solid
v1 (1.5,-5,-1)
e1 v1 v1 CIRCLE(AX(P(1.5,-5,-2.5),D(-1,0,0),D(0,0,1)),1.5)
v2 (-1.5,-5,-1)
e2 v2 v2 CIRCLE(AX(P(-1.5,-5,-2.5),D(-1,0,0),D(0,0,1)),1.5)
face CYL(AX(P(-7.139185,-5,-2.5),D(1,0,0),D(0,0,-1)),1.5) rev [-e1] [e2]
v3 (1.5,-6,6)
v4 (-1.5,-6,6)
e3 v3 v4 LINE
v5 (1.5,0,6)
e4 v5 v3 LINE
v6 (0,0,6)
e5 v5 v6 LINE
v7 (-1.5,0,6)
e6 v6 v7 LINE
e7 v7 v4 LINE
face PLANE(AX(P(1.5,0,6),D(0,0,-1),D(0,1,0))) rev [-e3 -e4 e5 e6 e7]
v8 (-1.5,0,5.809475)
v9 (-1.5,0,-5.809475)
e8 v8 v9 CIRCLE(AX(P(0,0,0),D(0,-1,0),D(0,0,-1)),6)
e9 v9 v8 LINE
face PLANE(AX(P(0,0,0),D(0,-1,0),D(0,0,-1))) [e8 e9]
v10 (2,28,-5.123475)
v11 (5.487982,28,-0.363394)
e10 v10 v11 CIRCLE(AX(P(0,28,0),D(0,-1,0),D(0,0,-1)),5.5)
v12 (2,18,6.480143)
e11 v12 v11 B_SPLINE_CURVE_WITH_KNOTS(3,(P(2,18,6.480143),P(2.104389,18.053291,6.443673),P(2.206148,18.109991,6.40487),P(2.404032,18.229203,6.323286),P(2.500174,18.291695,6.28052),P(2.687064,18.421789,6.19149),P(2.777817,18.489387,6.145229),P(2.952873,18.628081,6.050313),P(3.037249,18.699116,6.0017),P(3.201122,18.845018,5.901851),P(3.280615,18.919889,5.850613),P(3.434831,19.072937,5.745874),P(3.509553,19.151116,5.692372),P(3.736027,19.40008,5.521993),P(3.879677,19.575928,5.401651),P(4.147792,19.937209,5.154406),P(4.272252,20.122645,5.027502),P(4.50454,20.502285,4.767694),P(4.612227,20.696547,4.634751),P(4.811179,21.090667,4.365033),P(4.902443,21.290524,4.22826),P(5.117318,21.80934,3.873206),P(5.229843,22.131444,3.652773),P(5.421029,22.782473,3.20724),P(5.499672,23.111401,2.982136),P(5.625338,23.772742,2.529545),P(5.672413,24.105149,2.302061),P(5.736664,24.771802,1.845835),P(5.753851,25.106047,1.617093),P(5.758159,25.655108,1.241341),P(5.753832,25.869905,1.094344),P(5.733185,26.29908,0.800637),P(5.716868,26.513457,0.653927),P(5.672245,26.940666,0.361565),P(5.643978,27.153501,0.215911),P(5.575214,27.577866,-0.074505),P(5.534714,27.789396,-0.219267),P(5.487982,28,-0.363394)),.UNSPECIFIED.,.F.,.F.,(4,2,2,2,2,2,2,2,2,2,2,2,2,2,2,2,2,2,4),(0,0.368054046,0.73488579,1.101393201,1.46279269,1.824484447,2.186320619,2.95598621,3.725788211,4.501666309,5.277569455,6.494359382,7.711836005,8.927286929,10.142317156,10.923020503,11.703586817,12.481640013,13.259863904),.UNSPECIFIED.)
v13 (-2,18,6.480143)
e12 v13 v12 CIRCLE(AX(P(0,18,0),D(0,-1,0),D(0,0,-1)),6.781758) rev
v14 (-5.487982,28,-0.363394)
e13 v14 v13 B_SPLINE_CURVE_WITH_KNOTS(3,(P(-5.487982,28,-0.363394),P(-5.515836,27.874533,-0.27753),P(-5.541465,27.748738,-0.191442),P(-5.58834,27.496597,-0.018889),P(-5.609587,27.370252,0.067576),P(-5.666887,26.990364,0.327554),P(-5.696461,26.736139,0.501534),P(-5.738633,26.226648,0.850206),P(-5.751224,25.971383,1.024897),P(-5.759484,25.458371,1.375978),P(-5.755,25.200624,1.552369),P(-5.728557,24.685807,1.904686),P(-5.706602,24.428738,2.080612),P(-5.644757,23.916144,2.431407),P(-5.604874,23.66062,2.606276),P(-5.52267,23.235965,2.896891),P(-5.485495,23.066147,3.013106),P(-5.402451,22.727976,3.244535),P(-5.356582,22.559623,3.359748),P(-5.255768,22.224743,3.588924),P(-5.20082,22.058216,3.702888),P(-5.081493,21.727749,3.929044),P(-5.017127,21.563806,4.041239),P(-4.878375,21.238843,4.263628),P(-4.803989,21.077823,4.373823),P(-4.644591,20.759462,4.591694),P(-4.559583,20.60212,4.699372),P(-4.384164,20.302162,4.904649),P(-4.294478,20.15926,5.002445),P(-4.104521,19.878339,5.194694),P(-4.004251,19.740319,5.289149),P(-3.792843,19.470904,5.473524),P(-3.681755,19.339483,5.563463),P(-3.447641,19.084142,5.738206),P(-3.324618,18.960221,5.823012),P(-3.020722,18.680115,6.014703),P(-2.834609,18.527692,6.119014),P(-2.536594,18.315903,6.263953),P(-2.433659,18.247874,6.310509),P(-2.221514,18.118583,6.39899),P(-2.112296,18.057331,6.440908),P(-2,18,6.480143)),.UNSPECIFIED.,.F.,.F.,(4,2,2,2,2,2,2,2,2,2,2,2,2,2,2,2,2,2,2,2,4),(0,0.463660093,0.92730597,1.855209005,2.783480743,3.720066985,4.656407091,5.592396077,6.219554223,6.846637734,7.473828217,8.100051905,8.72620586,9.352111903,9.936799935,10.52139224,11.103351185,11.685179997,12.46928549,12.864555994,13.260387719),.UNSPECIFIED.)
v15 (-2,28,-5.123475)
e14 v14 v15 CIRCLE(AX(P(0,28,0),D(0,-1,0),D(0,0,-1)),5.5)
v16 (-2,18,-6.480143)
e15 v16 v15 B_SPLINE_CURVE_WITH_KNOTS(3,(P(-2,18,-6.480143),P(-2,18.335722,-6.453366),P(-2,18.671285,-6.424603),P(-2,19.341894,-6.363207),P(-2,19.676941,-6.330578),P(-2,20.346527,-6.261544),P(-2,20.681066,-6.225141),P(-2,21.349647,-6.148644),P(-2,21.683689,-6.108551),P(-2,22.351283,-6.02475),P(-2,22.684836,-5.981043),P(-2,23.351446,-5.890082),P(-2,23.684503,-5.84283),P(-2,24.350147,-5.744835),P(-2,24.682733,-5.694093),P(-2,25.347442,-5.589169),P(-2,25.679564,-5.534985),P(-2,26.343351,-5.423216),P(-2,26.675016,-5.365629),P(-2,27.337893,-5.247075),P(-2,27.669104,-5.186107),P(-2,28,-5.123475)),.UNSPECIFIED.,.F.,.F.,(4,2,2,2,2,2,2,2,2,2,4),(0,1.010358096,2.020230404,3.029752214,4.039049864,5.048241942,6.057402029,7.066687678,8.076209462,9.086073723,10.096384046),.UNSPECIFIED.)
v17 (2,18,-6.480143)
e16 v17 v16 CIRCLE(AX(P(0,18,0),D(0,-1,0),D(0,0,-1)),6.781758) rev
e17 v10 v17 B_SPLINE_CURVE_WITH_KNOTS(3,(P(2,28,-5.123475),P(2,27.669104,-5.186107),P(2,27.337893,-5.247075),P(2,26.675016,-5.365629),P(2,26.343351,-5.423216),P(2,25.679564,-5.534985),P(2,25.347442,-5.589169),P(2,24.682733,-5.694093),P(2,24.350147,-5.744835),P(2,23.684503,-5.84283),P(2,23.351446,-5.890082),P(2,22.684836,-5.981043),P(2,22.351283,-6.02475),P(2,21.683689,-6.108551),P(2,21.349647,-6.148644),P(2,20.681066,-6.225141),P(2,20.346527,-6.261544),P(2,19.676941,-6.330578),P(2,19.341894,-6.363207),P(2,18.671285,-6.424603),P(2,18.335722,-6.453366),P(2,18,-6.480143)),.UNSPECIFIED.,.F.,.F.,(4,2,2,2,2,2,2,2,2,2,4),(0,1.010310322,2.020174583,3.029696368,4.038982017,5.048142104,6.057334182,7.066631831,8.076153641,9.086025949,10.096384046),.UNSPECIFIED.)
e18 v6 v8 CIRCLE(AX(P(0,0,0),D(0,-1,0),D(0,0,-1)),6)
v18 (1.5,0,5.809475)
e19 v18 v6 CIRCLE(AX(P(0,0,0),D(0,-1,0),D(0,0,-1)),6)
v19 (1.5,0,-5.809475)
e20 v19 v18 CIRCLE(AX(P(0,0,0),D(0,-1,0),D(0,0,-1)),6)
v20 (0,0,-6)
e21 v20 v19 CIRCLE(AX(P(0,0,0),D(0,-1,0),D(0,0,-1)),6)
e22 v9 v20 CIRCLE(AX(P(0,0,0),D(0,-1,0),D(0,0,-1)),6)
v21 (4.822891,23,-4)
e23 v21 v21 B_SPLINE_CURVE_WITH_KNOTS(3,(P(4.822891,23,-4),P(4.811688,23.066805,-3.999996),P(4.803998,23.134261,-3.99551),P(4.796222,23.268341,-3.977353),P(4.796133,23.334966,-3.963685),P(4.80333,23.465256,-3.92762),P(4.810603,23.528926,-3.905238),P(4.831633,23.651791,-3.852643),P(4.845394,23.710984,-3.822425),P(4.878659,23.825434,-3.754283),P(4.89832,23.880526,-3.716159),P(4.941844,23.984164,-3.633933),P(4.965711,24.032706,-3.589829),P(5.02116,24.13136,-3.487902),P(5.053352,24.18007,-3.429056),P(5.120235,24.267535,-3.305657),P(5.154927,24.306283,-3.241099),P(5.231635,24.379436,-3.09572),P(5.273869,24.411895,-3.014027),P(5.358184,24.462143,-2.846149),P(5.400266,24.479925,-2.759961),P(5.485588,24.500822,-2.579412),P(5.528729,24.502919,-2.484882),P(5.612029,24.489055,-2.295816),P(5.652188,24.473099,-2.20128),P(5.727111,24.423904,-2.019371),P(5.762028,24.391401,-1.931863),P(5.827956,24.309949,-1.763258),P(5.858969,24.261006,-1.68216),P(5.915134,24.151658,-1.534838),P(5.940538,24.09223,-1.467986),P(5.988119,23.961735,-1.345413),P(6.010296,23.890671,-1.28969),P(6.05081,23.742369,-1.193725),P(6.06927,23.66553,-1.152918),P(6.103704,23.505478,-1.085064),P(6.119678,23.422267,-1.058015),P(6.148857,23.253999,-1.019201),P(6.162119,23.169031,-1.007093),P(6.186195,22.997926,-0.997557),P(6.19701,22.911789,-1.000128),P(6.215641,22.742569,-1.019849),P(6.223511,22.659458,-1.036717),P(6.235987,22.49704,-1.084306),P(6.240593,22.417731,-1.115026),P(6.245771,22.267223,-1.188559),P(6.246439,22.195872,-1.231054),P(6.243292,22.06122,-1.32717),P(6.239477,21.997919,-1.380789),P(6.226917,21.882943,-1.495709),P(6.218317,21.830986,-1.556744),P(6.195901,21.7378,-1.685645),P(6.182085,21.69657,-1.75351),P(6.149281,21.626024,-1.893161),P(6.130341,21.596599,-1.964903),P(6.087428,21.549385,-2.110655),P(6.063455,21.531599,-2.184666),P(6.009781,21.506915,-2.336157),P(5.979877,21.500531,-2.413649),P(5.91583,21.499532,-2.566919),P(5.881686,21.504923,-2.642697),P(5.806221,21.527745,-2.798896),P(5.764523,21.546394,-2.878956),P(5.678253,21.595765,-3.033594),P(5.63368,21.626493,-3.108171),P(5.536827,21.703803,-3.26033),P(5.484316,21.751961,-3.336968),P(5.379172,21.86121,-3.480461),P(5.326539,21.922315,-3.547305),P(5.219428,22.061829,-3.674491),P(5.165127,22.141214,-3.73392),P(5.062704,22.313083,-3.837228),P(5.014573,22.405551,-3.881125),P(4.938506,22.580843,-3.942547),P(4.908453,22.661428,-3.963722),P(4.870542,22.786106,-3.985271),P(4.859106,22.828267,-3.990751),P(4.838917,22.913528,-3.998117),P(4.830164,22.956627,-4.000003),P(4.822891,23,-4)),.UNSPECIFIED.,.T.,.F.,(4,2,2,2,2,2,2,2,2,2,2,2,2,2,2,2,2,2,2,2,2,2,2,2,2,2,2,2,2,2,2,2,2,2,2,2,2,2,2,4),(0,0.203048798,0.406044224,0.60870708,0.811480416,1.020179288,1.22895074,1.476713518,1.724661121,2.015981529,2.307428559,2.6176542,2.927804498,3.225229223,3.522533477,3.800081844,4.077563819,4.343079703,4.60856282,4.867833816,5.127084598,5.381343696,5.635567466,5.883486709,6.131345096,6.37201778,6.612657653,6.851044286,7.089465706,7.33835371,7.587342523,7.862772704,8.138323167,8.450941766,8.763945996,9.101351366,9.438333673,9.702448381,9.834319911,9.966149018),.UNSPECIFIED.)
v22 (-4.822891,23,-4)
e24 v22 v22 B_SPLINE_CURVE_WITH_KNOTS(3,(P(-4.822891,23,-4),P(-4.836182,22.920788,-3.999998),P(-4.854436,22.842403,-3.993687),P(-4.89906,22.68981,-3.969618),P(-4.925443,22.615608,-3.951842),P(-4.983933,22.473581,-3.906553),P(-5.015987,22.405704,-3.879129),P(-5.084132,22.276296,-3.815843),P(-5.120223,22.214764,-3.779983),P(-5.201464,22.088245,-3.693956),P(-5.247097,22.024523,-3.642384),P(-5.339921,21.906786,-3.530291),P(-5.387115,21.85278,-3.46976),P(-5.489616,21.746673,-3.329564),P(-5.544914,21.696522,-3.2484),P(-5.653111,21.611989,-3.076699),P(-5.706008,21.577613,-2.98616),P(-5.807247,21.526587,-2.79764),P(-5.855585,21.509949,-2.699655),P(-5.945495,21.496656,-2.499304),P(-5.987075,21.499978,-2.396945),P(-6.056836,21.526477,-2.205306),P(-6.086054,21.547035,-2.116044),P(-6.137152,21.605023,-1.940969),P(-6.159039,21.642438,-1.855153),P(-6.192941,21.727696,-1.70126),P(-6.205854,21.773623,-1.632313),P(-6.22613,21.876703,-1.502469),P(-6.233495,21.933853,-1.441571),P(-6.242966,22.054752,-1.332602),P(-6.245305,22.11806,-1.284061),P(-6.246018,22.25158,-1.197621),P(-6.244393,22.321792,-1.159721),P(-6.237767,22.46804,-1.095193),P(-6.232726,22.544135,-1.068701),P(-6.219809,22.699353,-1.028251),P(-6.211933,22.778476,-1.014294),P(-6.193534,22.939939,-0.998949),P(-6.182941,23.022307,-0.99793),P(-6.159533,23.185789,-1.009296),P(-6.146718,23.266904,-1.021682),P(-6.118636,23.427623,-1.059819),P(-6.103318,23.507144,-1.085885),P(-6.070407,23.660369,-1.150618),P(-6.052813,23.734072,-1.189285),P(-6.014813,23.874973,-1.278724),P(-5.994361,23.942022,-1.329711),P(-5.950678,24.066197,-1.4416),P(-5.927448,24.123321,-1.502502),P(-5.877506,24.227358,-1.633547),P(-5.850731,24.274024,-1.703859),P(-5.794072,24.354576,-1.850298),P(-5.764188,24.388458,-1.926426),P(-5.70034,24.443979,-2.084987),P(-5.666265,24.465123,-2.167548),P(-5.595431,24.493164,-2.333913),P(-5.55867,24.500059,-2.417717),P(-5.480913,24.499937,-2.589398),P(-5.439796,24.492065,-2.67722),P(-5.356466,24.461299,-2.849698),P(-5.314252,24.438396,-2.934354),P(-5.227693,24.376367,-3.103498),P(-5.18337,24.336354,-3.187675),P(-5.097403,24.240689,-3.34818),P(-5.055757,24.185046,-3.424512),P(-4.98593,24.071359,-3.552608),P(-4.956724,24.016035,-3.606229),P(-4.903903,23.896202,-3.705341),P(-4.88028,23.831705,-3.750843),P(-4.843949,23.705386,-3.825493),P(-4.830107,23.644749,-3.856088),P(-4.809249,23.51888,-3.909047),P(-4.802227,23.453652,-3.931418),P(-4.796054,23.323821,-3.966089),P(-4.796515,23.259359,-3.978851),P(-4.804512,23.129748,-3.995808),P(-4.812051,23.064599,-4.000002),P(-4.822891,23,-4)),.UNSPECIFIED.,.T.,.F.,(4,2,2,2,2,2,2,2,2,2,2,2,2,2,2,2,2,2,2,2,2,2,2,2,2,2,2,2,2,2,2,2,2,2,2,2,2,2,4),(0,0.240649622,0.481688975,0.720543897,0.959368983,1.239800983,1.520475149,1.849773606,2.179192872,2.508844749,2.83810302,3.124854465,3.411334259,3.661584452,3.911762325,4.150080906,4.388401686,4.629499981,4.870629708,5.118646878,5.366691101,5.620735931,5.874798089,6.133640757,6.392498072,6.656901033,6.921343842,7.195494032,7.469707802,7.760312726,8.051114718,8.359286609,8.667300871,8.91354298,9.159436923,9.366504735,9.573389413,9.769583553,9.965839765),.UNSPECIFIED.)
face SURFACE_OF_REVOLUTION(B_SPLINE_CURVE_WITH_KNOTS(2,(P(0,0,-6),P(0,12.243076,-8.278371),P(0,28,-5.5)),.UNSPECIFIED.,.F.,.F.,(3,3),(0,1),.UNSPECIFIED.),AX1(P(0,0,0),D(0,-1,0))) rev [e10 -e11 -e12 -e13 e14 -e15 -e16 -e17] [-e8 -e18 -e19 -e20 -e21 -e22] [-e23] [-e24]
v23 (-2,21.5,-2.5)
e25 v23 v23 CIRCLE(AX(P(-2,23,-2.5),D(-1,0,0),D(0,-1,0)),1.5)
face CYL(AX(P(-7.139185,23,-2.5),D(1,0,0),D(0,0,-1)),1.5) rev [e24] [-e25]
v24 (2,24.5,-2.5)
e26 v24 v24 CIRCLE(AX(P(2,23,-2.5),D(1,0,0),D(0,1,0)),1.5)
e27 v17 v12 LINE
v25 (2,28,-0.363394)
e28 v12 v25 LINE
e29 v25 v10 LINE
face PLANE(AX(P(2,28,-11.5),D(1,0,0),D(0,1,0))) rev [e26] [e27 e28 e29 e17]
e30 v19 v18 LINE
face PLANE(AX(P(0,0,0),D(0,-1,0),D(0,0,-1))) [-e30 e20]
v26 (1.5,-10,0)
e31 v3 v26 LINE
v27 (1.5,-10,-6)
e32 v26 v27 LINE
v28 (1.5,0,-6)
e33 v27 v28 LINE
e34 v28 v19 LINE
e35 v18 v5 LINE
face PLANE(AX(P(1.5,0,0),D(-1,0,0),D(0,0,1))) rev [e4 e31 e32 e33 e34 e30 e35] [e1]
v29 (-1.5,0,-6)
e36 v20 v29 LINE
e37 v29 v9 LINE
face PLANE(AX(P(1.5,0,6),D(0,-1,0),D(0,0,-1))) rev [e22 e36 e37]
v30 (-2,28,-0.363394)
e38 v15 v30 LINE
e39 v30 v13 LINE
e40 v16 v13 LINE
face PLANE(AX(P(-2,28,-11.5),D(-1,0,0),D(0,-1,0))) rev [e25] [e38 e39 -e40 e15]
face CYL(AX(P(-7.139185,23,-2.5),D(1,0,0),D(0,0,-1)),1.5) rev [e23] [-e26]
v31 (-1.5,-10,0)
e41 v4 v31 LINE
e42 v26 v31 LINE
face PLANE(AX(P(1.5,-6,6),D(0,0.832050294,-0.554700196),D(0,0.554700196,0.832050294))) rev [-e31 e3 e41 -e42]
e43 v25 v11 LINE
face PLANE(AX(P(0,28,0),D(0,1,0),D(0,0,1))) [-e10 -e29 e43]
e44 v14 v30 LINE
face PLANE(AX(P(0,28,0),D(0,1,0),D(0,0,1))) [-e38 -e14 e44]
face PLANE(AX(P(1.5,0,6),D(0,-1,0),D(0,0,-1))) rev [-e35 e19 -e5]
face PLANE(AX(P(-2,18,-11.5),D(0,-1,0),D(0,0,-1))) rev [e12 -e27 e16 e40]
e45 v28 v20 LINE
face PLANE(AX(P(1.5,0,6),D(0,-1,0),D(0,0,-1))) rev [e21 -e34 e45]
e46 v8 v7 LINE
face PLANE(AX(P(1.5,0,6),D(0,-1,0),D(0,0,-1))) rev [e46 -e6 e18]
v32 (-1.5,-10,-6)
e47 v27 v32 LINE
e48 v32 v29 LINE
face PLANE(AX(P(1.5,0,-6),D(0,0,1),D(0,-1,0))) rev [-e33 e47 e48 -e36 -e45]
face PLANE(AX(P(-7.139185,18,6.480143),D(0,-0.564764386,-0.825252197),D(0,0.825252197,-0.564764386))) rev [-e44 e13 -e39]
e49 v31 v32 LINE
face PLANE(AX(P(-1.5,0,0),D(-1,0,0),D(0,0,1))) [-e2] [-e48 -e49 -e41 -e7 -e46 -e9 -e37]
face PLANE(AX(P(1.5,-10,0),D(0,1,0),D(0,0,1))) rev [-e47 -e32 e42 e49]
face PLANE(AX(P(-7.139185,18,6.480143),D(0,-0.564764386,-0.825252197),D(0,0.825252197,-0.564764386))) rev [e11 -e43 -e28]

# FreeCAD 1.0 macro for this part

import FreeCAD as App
import Part
import Sketcher
from FreeCAD import Vector
Q = App.Units.Quantity

doc = App.newDocument("Part")
body = doc.addObject("PartDesign::Body", "Body")

# Sketch on YZ plane
sketch1 = body.newObject("Sketcher::SketchObject", "Sketch")
sketch1.AttachmentSupport = (doc.getObject("YZ_Plane"), [""])
sketch1.MapMode = "FlatFace"
sketch1.addGeometry([
    Part.LineSegment(Vector(28, 0, 0), Vector(0, 0, 0)),
    Part.LineSegment(Vector(0, 0, 0), Vector(0, -6, 0)),
    Part.BSplineCurve([Vector(28, -5.5, 0), Vector(12.243076, -8.278371, 0), Vector(0, -6, 0)], [3, 3], [0, 1], False, 2, [1, 1, 1], False),
    Part.LineSegment(Vector(28, -5.5, 0), Vector(28, 0, 0)),
], False)
sketch1.addConstraint([
    Sketcher.Constraint("Block", 2),
    Sketcher.Constraint("Coincident", 0, 2, 1, 1),
    Sketcher.Constraint("Coincident", 1, 2, 2, 2),
    Sketcher.Constraint("Coincident", 2, 1, 3, 1),
    Sketcher.Constraint("Coincident", 3, 2, 0, 1),
    Sketcher.Constraint("Horizontal", 0),
    Sketcher.Constraint("Vertical", 1),
    Sketcher.Constraint("Vertical", 3),
    Sketcher.Constraint("PointOnObject", 3, 2, -1),
])
revolution = body.newObject("PartDesign::Revolution", "Revolution")
revolution.Profile = sketch1
revolution.ReferenceAxis = (sketch1, ["H_Axis"])
revolution.Angle = 360

# Sketch on XY plane
sketch2 = body.newObject("Sketcher::SketchObject", "Sketch001")
sketch2.AttachmentSupport = (doc.getObject("XY_Plane"), [""])
sketch2.MapMode = "FlatFace"
sketch2.addGeometry([
    Part.LineSegment(Vector(-2, 28, 0), Vector(-2, 18, 0)),
    Part.LineSegment(Vector(-2, 18, 0), Vector(2, 18, 0)),
    Part.LineSegment(Vector(2, 18, 0), Vector(2, 28, 0)),
    Part.LineSegment(Vector(2, 28, 0), Vector(-2, 28, 0)),
], False)
sketch2.addConstraint([
    Sketcher.Constraint("Coincident", 0, 2, 1, 1),
    Sketcher.Constraint("Coincident", 1, 2, 2, 1),
    Sketcher.Constraint("Coincident", 2, 2, 3, 1),
    Sketcher.Constraint("Coincident", 3, 2, 0, 1),
    Sketcher.Constraint("Vertical", 0),
    Sketcher.Constraint("Horizontal", 1),
    Sketcher.Constraint("Vertical", 2),
    Sketcher.Constraint("Horizontal", 3),
    Sketcher.Constraint("DistanceX", 1, 1, 1, 2, Q("4 mm")),
    Sketcher.Constraint("DistanceY", 0, 2, 0, 1, Q("10 mm")),
    Sketcher.Constraint("DistanceX", 0, 2, -1, 1, Q("2 mm")),
    Sketcher.Constraint("DistanceY", -1, 1, 0, 2, Q("18 mm")),
])
pocket1 = body.newObject("PartDesign::Pocket", "Pocket")
pocket1.Profile = sketch2
pocket1.Length = 23
pocket1.Midplane = True

# Sketch on YZ plane
sketch3 = body.newObject("Sketcher::SketchObject", "Sketch002")
sketch3.AttachmentSupport = (doc.getObject("YZ_Plane"), [""])
sketch3.MapMode = "FlatFace"
sketch3.addGeometry([
    Part.LineSegment(Vector(28, 7, 0), Vector(18, 6, 0)),
    Part.LineSegment(Vector(18, 6, 0), Vector(28, 0, 0)),
    Part.LineSegment(Vector(28, 0, 0), Vector(28, 7, 0)),
], False)
sketch3.addConstraint([
    Sketcher.Constraint("Coincident", 0, 2, 1, 1),
    Sketcher.Constraint("Coincident", 1, 2, 2, 1),
    Sketcher.Constraint("Coincident", 2, 2, 0, 1),
    Sketcher.Constraint("Vertical", 2),
    Sketcher.Constraint("DistanceX", -1, 1, 0, 2, Q("18 mm")),
    Sketcher.Constraint("DistanceX", -1, 1, 1, 2, Q("28 mm")),
    Sketcher.Constraint("DistanceY", 2, 1, 2, 2, Q("7.145153 mm")),
    Sketcher.Constraint("DistanceY", -1, 1, 2, 2, Q("6.781758 mm")),
    Sketcher.Constraint("Distance", 0, Q("10.004548 mm")),
])
pocket2 = body.newObject("PartDesign::Pocket", "Pocket001")
pocket2.Profile = sketch3
pocket2.Type = "ThroughAll"
pocket2.Midplane = True

# Sketch on YZ plane
sketch4 = body.newObject("Sketcher::SketchObject", "Sketch003")
sketch4.AttachmentSupport = (doc.getObject("YZ_Plane"), [""])
sketch4.MapMode = "FlatFace"
sketch4.addGeometry([
    Part.LineSegment(Vector(0, 6, 0), Vector(-6, 6, 0)),  # 0
    Part.LineSegment(Vector(-6, 6, 0), Vector(-10, 0, 0)),  # 1
    Part.LineSegment(Vector(-10, 0, 0), Vector(-10, -6, 0)),  # 2
    Part.LineSegment(Vector(-10, -6, 0), Vector(0, -6, 0)),  # 3
    Part.LineSegment(Vector(0, -6, 0), Vector(0, 6, 0)),  # 4
], False)
sketch4.addConstraint([
    Sketcher.Constraint("Coincident", 0, 2, 1, 1),
    Sketcher.Constraint("Coincident", 1, 2, 2, 1),
    Sketcher.Constraint("Coincident", 2, 2, 3, 1),
    Sketcher.Constraint("Coincident", 3, 2, 4, 1),
    Sketcher.Constraint("Coincident", 4, 2, 0, 1),
    Sketcher.Constraint("Horizontal", 0),
    Sketcher.Constraint("Vertical", 2),
    Sketcher.Constraint("Horizontal", 3),
    Sketcher.Constraint("Vertical", 4),
    Sketcher.Constraint("Symmetric", 3, 2, 4, 2, -1, 1),
    Sketcher.Constraint("PointOnObject", 1, 2, -1),
    Sketcher.Constraint("Equal", 0, 2),
    Sketcher.Constraint("DistanceX", 0, 2, 0, 1, Q("6 mm")),
    Sketcher.Constraint("DistanceX", 3, 1, 3, 2, Q("10 mm")),
])
pad1 = body.newObject("PartDesign::Pad", "Pad")
pad1.Profile = sketch4
pad1.Length = 3
pad1.Midplane = True

# Sketch on YZ plane
sketch5 = body.newObject("Sketcher::SketchObject", "Sketch004")
sketch5.AttachmentSupport = (doc.getObject("YZ_Plane"), [""])
sketch5.MapMode = "FlatFace"
sketch5.addGeometry([
    Part.Circle(Vector(23, -2.5, 0), Vector(0, 0, 1), 1.5),
    Part.Circle(Vector(-5, -2.5, 0), Vector(0, 0, 1), 1.5),
], False)
sketch5.addConstraint([
    Sketcher.Constraint("Equal", 0, 1),
    Sketcher.Constraint("Horizontal", 0, 3, 1, 3),
    Sketcher.Constraint("Diameter", 0, Q("3 mm")),
    Sketcher.Constraint("DistanceX", -1, 1, 0, 3, Q("23 mm")),
    Sketcher.Constraint("DistanceX", 1, 3, -1, 1, Q("5 mm")),
    Sketcher.Constraint("DistanceY", 0, 3, -1, 1, Q("2.5 mm")),
])
pocket3 = body.newObject("PartDesign::Pocket", "Pocket002")
pocket3.Profile = sketch5
pocket3.Type = "ThroughAll"
pocket3.Midplane = True

doc.recompute()
